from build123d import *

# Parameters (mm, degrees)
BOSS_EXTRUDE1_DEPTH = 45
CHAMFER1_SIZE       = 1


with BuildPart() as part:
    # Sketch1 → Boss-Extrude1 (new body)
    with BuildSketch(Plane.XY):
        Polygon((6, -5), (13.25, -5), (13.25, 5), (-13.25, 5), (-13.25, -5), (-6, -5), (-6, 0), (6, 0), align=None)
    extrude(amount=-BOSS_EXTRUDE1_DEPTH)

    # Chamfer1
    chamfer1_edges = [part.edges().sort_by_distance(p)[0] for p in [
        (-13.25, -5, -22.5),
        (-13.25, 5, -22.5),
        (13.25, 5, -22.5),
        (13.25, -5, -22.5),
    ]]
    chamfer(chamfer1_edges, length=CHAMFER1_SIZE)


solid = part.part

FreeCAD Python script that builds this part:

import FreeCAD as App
import Part
import Sketcher


def edges_at(feature, points):
    """Names of the edges that pass closest to the given points."""
    edges = feature.Shape.Edges
    near = lambda p: min(range(len(edges)), key=lambda i: edges[i].distToShape(Part.Vertex(*p))[0])
    return sorted({f"Edge{near(p) + 1}" for p in points})


def add_polygon(sketch, points):
    """Adds a closed chain of lines whose ends are joined by coincident constraints."""
    first, n = sketch.GeometryCount, len(points)
    for a, b in zip(points, points[1:] + points[:1]):
        sketch.addGeometry(Part.LineSegment(App.Vector(*a, 0), App.Vector(*b, 0)), False)
    for i in range(n):
        sketch.addConstraint(Sketcher.Constraint("Coincident", first + i, 2, first + (i + 1) % n, 1))

doc = App.newDocument("Part")
params = doc.addObject("Spreadsheet::Sheet", "Params")
for row, (alias, value) in enumerate([
    ("sketch1_width", "12 mm"),
    ("sketch1_height", "10 mm"),
    ("sketch1_width2", "26.5 mm"),
    ("pad1_length", "45 mm"),
    ("chamfer_size", "1 mm"),
], start=1):
    params.set(f"A{row}", alias)
    params.set(f"B{row}", "=" + value)
    params.setAlias(f"B{row}", alias)

body = doc.addObject("PartDesign::Body", "Body")

sketch1 = body.newObject("Sketcher::SketchObject", "Sketch")
sketch1.AttachmentSupport = (doc.getObject("XY_Plane"), [""])
sketch1.MapMode = "FlatFace"
add_polygon(sketch1, [(6, -5), (13, -5), (13, 5), (-13, 5), (-13, -5), (-6, -5), (-6, 0), (6, 0)])
sketch1.addConstraint(Sketcher.Constraint("Horizontal", 0))
sketch1.addConstraint(Sketcher.Constraint("Vertical", 1))
sketch1.addConstraint(Sketcher.Constraint("Horizontal", 2))
sketch1.addConstraint(Sketcher.Constraint("Vertical", 3))
sketch1.addConstraint(Sketcher.Constraint("Horizontal", 4))
sketch1.addConstraint(Sketcher.Constraint("Vertical", 5))
sketch1.addConstraint(Sketcher.Constraint("Horizontal", 6))
sketch1.addConstraint(Sketcher.Constraint("Vertical", 7))
sketch1.addConstraint(Sketcher.Constraint("Symmetric", 0, 2, 2, 2, -1, 1))
sketch1.addConstraint(Sketcher.Constraint("Symmetric", 5, 2, 6, 2, -1, 1))
sketch1.addConstraint(Sketcher.Constraint("Horizontal", 0, 2, 3, 2))
sketch1.addConstraint(Sketcher.Constraint("DistanceX", 6, 1, 6, 2, 12.0))
sketch1.addConstraint(Sketcher.Constraint("DistanceY", 1, 1, 1, 2, 10.0))
sketch1.addConstraint(Sketcher.Constraint("DistanceX", 2, 2, 2, 1, 26.5))
sketch1.setExpression("Constraints[19]", "Params.sketch1_width")
sketch1.setExpression("Constraints[20]", "Params.sketch1_height")
sketch1.setExpression("Constraints[21]", "Params.sketch1_width2")
pad1 = body.newObject("PartDesign::Pad", "Pad")
pad1.Profile = sketch1
pad1.setExpression("Length", "Params.pad1_length")
pad1.Reversed = True
doc.recompute()

chamfer = body.newObject("PartDesign::Chamfer", "Chamfer")
chamfer.Base = (pad1, edges_at(pad1, [
    (-13.25, -5, -22.5),
    (-13.25, 5, -22.5),
    (13.25, 5, -22.5),
    (13.25, -5, -22.5),
]))
chamfer.setExpression("Size", "Params.chamfer_size")

doc.recompute()
